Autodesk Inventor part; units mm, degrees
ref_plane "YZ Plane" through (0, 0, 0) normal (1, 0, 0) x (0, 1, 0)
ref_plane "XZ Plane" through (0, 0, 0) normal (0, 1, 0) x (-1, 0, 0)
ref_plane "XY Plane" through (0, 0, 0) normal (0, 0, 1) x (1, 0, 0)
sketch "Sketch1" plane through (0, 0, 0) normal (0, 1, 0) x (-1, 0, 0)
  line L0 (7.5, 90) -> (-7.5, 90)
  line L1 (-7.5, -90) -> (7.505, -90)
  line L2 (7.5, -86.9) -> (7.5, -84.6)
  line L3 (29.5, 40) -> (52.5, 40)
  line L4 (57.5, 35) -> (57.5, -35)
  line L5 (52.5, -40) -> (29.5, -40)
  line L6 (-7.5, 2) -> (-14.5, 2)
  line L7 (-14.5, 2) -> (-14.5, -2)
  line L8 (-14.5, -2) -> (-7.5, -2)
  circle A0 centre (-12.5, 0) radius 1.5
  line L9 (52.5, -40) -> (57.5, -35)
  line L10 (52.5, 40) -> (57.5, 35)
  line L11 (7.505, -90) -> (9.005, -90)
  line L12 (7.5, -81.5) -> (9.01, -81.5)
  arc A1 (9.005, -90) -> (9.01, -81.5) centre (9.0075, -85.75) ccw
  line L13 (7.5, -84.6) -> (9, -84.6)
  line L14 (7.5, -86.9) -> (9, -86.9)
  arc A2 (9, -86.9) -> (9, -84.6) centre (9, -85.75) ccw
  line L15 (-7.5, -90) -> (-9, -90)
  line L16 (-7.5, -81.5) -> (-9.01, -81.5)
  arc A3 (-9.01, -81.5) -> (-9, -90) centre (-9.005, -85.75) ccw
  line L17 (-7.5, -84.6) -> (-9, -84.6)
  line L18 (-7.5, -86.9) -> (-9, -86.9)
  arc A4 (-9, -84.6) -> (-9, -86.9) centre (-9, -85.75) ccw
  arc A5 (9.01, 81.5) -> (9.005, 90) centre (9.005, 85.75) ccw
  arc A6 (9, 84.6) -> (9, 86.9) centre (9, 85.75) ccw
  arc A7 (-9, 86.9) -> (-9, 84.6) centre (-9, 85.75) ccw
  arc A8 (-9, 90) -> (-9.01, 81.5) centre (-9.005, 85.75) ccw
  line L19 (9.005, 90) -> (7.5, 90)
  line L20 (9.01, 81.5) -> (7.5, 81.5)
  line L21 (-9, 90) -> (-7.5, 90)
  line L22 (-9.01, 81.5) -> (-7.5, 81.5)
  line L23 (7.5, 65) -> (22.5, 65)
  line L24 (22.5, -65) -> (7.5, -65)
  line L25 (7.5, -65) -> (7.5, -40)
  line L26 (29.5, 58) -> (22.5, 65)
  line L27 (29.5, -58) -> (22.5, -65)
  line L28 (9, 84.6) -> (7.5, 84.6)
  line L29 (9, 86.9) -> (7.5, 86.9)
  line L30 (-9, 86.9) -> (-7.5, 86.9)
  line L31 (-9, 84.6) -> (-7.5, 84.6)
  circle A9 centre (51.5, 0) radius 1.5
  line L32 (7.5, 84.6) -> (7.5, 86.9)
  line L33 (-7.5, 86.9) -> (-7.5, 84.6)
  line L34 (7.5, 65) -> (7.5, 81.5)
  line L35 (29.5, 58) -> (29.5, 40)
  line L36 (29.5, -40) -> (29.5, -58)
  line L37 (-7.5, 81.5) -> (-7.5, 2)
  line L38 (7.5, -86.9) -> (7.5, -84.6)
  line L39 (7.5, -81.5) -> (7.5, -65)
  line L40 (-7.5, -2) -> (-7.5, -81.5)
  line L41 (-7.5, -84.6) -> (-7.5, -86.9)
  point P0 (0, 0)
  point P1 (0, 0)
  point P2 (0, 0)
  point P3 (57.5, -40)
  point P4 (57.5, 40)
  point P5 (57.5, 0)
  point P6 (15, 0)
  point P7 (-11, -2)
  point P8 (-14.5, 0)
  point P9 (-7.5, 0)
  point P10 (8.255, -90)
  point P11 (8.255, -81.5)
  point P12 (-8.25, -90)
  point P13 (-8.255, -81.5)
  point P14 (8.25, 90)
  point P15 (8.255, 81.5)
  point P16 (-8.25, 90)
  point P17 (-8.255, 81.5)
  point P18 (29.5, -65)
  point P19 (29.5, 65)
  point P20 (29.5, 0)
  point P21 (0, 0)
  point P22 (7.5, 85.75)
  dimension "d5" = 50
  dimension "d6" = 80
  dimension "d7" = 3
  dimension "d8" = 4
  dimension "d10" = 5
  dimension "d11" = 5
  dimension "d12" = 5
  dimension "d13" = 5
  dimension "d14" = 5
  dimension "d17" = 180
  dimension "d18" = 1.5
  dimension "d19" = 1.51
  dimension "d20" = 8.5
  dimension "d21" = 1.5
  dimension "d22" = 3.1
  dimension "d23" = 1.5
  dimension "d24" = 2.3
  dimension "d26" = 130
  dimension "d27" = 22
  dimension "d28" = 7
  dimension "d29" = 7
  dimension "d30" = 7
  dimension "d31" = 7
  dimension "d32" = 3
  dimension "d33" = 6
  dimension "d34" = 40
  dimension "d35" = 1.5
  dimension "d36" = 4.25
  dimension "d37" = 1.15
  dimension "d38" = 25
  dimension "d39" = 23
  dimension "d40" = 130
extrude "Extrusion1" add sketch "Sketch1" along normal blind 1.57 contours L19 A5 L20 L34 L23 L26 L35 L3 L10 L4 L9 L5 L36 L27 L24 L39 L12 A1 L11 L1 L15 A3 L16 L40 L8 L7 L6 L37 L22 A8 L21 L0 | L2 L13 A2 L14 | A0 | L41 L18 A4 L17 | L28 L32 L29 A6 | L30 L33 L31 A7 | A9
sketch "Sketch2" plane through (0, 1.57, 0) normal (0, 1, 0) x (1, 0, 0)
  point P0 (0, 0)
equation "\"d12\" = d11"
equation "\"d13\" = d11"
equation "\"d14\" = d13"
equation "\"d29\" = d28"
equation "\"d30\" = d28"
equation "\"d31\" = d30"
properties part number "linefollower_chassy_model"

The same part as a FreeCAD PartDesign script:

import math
import FreeCAD as App
import Part
import Sketcher
Q = App.Units.Quantity

doc = App.newDocument("Part")
body = doc.addObject("PartDesign::Body", "Body")

# Sketch on XZ plane
sketch1 = body.newObject("Sketcher::SketchObject", "Sketch")
sketch1.AttachmentSupport = (doc.getObject("XZ_Plane"), [""])
sketch1.MapMode = "FlatFace"
sketch1.addGeometry(Part.LineSegment(App.Vector(-9, 90, 0), App.Vector(9, 90, 0)), False)
sketch1.addGeometry(Part.ArcOfCircle(Part.Circle(App.Vector(9, 85.8, 0), App.Vector(0, 0, 1), 4.3), math.radians(-90), math.radians(90)), False)
sketch1.addGeometry(Part.LineSegment(App.Vector(9, 81.5, 0), App.Vector(7.5, 81.5, 0)), False)
sketch1.addGeometry(Part.LineSegment(App.Vector(7.5, 81.5, 0), App.Vector(7.5, 2, 0)), False)
sketch1.addGeometry(Part.LineSegment(App.Vector(7.5, 2, 0), App.Vector(14.5, 2, 0)), False)
sketch1.addGeometry(Part.LineSegment(App.Vector(14.5, 2, 0), App.Vector(14.5, -2, 0)), False)
sketch1.addGeometry(Part.LineSegment(App.Vector(14.5, -2, 0), App.Vector(7.5, -2, 0)), False)
sketch1.addGeometry(Part.LineSegment(App.Vector(7.5, -2, 0), App.Vector(7.5, -81.5, 0)), False)
sketch1.addGeometry(Part.LineSegment(App.Vector(7.5, -81.5, 0), App.Vector(9, -81.5, 0)), False)
sketch1.addGeometry(Part.ArcOfCircle(Part.Circle(App.Vector(9, -85.8, 0), App.Vector(0, 0, 1), 4.3), math.radians(-90), math.radians(90)), False)
sketch1.addGeometry(Part.LineSegment(App.Vector(9, -90, 0), App.Vector(-9, -90, 0)), False)
sketch1.addGeometry(Part.ArcOfCircle(Part.Circle(App.Vector(-9, -85.8, 0), App.Vector(0, 0, 1), 4.3), math.radians(90), math.radians(270)), False)
sketch1.addGeometry(Part.LineSegment(App.Vector(-9, -81.5, 0), App.Vector(-7.5, -81.5, 0)), False)
sketch1.addGeometry(Part.LineSegment(App.Vector(-7.5, -81.5, 0), App.Vector(-7.5, -65, 0)), False)
sketch1.addGeometry(Part.LineSegment(App.Vector(-7.5, -65, 0), App.Vector(-22.5, -65, 0)), False)
sketch1.addGeometry(Part.LineSegment(App.Vector(-22.5, -65, 0), App.Vector(-29.5, -58, 0)), False)
sketch1.addGeometry(Part.LineSegment(App.Vector(-29.5, -58, 0), App.Vector(-29.5, -40, 0)), False)
sketch1.addGeometry(Part.LineSegment(App.Vector(-29.5, -40, 0), App.Vector(-52.5, -40, 0)), False)
sketch1.addGeometry(Part.LineSegment(App.Vector(-52.5, -40, 0), App.Vector(-57.5, -35, 0)), False)
sketch1.addGeometry(Part.LineSegment(App.Vector(-57.5, -35, 0), App.Vector(-57.5, 35, 0)), False)
sketch1.addGeometry(Part.LineSegment(App.Vector(-57.5, 35, 0), App.Vector(-52.5, 40, 0)), False)
sketch1.addGeometry(Part.LineSegment(App.Vector(-52.5, 40, 0), App.Vector(-29.5, 40, 0)), False)
sketch1.addGeometry(Part.LineSegment(App.Vector(-29.5, 40, 0), App.Vector(-29.5, 58, 0)), False)
sketch1.addGeometry(Part.LineSegment(App.Vector(-29.5, 58, 0), App.Vector(-22.5, 65, 0)), False)
sketch1.addGeometry(Part.LineSegment(App.Vector(-22.5, 65, 0), App.Vector(-7.5, 65, 0)), False)
sketch1.addGeometry(Part.LineSegment(App.Vector(-7.5, 65, 0), App.Vector(-7.5, 81.5, 0)), False)
sketch1.addGeometry(Part.LineSegment(App.Vector(-7.5, 81.5, 0), App.Vector(-9, 81.5, 0)), False)
sketch1.addGeometry(Part.ArcOfCircle(Part.Circle(App.Vector(-9, 85.8, 0), App.Vector(0, 0, 1), 4.3), math.radians(90), math.radians(270)), False)
sketch1.addConstraint(Sketcher.Constraint("Coincident", 0, 2, 1, 2))
sketch1.addConstraint(Sketcher.Constraint("Coincident", 1, 1, 2, 1))
sketch1.addConstraint(Sketcher.Constraint("Coincident", 2, 2, 3, 1))
sketch1.addConstraint(Sketcher.Constraint("Coincident", 3, 2, 4, 1))
sketch1.addConstraint(Sketcher.Constraint("Coincident", 4, 2, 5, 1))
sketch1.addConstraint(Sketcher.Constraint("Coincident", 5, 2, 6, 1))
sketch1.addConstraint(Sketcher.Constraint("Coincident", 6, 2, 7, 1))
sketch1.addConstraint(Sketcher.Constraint("Coincident", 7, 2, 8, 1))
sketch1.addConstraint(Sketcher.Constraint("Coincident", 8, 2, 9, 2))
sketch1.addConstraint(Sketcher.Constraint("Coincident", 9, 1, 10, 1))
sketch1.addConstraint(Sketcher.Constraint("Coincident", 10, 2, 11, 2))
sketch1.addConstraint(Sketcher.Constraint("Coincident", 11, 1, 12, 1))
sketch1.addConstraint(Sketcher.Constraint("Coincident", 12, 2, 13, 1))
sketch1.addConstraint(Sketcher.Constraint("Coincident", 13, 2, 14, 1))
sketch1.addConstraint(Sketcher.Constraint("Coincident", 14, 2, 15, 1))
sketch1.addConstraint(Sketcher.Constraint("Coincident", 15, 2, 16, 1))
sketch1.addConstraint(Sketcher.Constraint("Coincident", 16, 2, 17, 1))
sketch1.addConstraint(Sketcher.Constraint("Coincident", 17, 2, 18, 1))
sketch1.addConstraint(Sketcher.Constraint("Coincident", 18, 2, 19, 1))
sketch1.addConstraint(Sketcher.Constraint("Coincident", 19, 2, 20, 1))
sketch1.addConstraint(Sketcher.Constraint("Coincident", 20, 2, 21, 1))
sketch1.addConstraint(Sketcher.Constraint("Coincident", 21, 2, 22, 1))
sketch1.addConstraint(Sketcher.Constraint("Coincident", 22, 2, 23, 1))
sketch1.addConstraint(Sketcher.Constraint("Coincident", 23, 2, 24, 1))
sketch1.addConstraint(Sketcher.Constraint("Coincident", 24, 2, 25, 1))
sketch1.addConstraint(Sketcher.Constraint("Coincident", 25, 2, 26, 1))
sketch1.addConstraint(Sketcher.Constraint("Coincident", 26, 2, 27, 2))
sketch1.addConstraint(Sketcher.Constraint("Tangent", 27, 1, 0, 1))
sketch1.addConstraint(Sketcher.Constraint("Horizontal", 0))
sketch1.addConstraint(Sketcher.Constraint("Horizontal", 2))
sketch1.addConstraint(Sketcher.Constraint("Vertical", 3))
sketch1.addConstraint(Sketcher.Constraint("Horizontal", 4))
sketch1.addConstraint(Sketcher.Constraint("Vertical", 5))
sketch1.addConstraint(Sketcher.Constraint("Horizontal", 6))
sketch1.addConstraint(Sketcher.Constraint("Vertical", 7))
sketch1.addConstraint(Sketcher.Constraint("Horizontal", 8))
sketch1.addConstraint(Sketcher.Constraint("Horizontal", 10))
sketch1.addConstraint(Sketcher.Constraint("Horizontal", 12))
sketch1.addConstraint(Sketcher.Constraint("Vertical", 13))
sketch1.addConstraint(Sketcher.Constraint("Horizontal", 14))
sketch1.addConstraint(Sketcher.Constraint("Vertical", 16))
sketch1.addConstraint(Sketcher.Constraint("Horizontal", 17))
sketch1.addConstraint(Sketcher.Constraint("Vertical", 19))
sketch1.addConstraint(Sketcher.Constraint("Horizontal", 21))
sketch1.addConstraint(Sketcher.Constraint("Vertical", 22))
sketch1.addConstraint(Sketcher.Constraint("Horizontal", 24))
sketch1.addConstraint(Sketcher.Constraint("Vertical", 25))
sketch1.addConstraint(Sketcher.Constraint("Horizontal", 26))
sketch1.addConstraint(Sketcher.Constraint("Equal", 1, 9))
sketch1.addConstraint(Sketcher.Constraint("Equal", 9, 11))
sketch1.addConstraint(Sketcher.Constraint("Equal", 11, 27))
sketch1.addConstraint(Sketcher.Constraint("Symmetric", 9, 3, 27, 3, -1, 1))
sketch1.addConstraint(Sketcher.Constraint("Symmetric", 3, 2, 6, 2, -1))
sketch1.addConstraint(Sketcher.Constraint("Symmetric", 17, 2, 20, 2, -1))
sketch1.addConstraint(Sketcher.Constraint("Symmetric", 15, 2, 22, 2, -1))
sketch1.addConstraint(Sketcher.Constraint("Symmetric", 14, 2, 23, 2, -1))
sketch1.addConstraint(Sketcher.Constraint("Parallel", 15, 18))
sketch1.addConstraint(Sketcher.Constraint("Perpendicular", 18, 20))
sketch1.addConstraint(Sketcher.Constraint("Parallel", 20, 23))
sketch1.addConstraint(Sketcher.Constraint("Vertical", 1, 3, 9, 3))
sketch1.addConstraint(Sketcher.Constraint("Vertical", 1, 1, 8, 2))
sketch1.addConstraint(Sketcher.Constraint("Vertical", 0, 2, 9, 1))
sketch1.addConstraint(Sketcher.Constraint("Vertical", 27, 3, 10, 2))
sketch1.addConstraint(Sketcher.Constraint("Vertical", 13, 2, 24, 2))
sketch1.addConstraint(Sketcher.Constraint("Vertical", 11, 1, 26, 2))
sketch1.addConstraint(Sketcher.Constraint("Equal", 8, 12))
sketch1.addConstraint(Sketcher.Constraint("DistanceX", 4, 1, 4, 2, Q("7 mm")))
sketch1.addConstraint(Sketcher.Constraint("DistanceX", 17, 2, 17, 1, Q("23 mm")))
sketch1.addConstraint(Sketcher.Constraint("DistanceY", 5, 2, 5, 1, Q("4 mm")))
sketch1.addConstraint(Sketcher.Constraint("Radius", 1, Q("4.25 mm")))
sketch1.addConstraint(Sketcher.Constraint("DistanceY", 16, 2, -1, 1, Q("40 mm")))
sketch1.addConstraint(Sketcher.Constraint("DistanceY", 10, 2, 14, 2, Q("25 mm")))
sketch1.addConstraint(Sketcher.Constraint("DistanceX", 15, 2, 14, 2, Q("7 mm")))
sketch1.addConstraint(Sketcher.Constraint("DistanceX", 15, 2, 13, 2, Q("22 mm")))
sketch1.addConstraint(Sketcher.Constraint("DistanceY", 14, 2, 16, 2, Q("25 mm")))
sketch1.addConstraint(Sketcher.Constraint("DistanceX", 18, 2, 17, 2, Q("5 mm")))
sketch1.addConstraint(Sketcher.Constraint("DistanceX", 2, 2, 2, 1, Q("1.51 mm")))
sketch1.addConstraint(Sketcher.Constraint("DistanceX", 2, 2, 0, 2, Q("1.5 mm")))
sketch1.addConstraint(Sketcher.Constraint("DistanceX", -1, 1, 0, 2, Q("9 mm")))
sketch1.addConstraint(Sketcher.Constraint("DistanceX", 12, 2, 7, 2, Q("15 mm")))
sketch1.addConstraint(Sketcher.Constraint("DistanceX", 0, 1, 0, 2, Q("18.005 mm")))
sketch1.addConstraint(Sketcher.Constraint("DistanceX", 11, 3, -1, 1, Q("9.0075 mm")))
pad1 = body.newObject("PartDesign::Pad", "Pad")
pad1.Profile = sketch1
pad1.Length = 1.57
pad1.Reversed = True

doc.recompute()
